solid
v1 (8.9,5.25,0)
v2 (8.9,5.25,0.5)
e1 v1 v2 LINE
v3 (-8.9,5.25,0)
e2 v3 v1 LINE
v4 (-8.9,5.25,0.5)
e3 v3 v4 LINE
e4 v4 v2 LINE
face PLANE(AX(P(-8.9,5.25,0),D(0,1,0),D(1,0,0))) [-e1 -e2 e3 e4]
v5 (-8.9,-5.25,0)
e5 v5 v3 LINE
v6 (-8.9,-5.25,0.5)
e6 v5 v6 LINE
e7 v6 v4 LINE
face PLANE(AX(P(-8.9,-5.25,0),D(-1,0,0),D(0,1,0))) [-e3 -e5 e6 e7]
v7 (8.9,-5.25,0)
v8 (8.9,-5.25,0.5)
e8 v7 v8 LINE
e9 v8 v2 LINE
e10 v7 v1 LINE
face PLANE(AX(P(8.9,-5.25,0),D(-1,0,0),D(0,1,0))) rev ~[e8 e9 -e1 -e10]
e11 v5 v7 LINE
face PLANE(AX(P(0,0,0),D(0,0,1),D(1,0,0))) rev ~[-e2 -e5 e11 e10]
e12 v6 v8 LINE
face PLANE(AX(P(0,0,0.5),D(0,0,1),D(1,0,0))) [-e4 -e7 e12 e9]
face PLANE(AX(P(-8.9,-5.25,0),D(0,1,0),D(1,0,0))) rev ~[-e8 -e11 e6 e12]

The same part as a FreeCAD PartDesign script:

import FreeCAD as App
import Part
import Sketcher

doc = App.newDocument("Part")
params = doc.addObject("Spreadsheet::Sheet", "Params")
for row, (alias, value) in enumerate([
    ("sketch1_width", "17.8 mm"),
    ("sketch1_height", "10.5 mm"),
    ("pad1_length", "0.5 mm"),
], start=1):
    params.set(f"A{row}", alias)
    params.set(f"B{row}", "=" + value)
    params.setAlias(f"B{row}", alias)

body = doc.addObject("PartDesign::Body", "Body")

sketch1 = doc.addObject("Sketcher::SketchObject", "Sketch")
body.addObject(sketch1)
sketch1.AttachmentSupport = (doc.XY_Plane, [""])
sketch1.MapMode = "FlatFace"
sketch1.addGeometry([
    Part.LineSegment(App.Vector(-8.9, 5.25, 0), App.Vector(-8.9, -5.25, 0)),
    Part.LineSegment(App.Vector(-8.9, -5.25, 0), App.Vector(8.9, -5.25, 0)),
    Part.LineSegment(App.Vector(8.9, -5.25, 0), App.Vector(8.9, 5.25, 0)),
    Part.LineSegment(App.Vector(8.9, 5.25, 0), App.Vector(-8.9, 5.25, 0)),
], False)
sketch1.addConstraint([
    Sketcher.Constraint("Coincident", 0, 2, 1, 1),
    Sketcher.Constraint("Coincident", 1, 2, 2, 1),
    Sketcher.Constraint("Coincident", 2, 2, 3, 1),
    Sketcher.Constraint("Coincident", 3, 2, 0, 1),
    Sketcher.Constraint("Vertical", 0),
    Sketcher.Constraint("Horizontal", 1),
    Sketcher.Constraint("Vertical", 2),
    Sketcher.Constraint("Horizontal", 3),
    Sketcher.Constraint("Symmetric", 0, 2, 2, 2, -1, 1),
    Sketcher.Constraint("DistanceX", 1, 1, 1, 2, 17.8),
    Sketcher.Constraint("DistanceY", 0, 2, 0, 1, 10.5),
])
sketch1.setExpression("Constraints[9]", "Params.sketch1_width")
sketch1.setExpression("Constraints[10]", "Params.sketch1_height")
pad1 = doc.addObject("PartDesign::Pad", "Pad")
body.addObject(pad1)
pad1.Profile = sketch1
pad1.setExpression("Length", "Params.pad1_length")

doc.recompute()
